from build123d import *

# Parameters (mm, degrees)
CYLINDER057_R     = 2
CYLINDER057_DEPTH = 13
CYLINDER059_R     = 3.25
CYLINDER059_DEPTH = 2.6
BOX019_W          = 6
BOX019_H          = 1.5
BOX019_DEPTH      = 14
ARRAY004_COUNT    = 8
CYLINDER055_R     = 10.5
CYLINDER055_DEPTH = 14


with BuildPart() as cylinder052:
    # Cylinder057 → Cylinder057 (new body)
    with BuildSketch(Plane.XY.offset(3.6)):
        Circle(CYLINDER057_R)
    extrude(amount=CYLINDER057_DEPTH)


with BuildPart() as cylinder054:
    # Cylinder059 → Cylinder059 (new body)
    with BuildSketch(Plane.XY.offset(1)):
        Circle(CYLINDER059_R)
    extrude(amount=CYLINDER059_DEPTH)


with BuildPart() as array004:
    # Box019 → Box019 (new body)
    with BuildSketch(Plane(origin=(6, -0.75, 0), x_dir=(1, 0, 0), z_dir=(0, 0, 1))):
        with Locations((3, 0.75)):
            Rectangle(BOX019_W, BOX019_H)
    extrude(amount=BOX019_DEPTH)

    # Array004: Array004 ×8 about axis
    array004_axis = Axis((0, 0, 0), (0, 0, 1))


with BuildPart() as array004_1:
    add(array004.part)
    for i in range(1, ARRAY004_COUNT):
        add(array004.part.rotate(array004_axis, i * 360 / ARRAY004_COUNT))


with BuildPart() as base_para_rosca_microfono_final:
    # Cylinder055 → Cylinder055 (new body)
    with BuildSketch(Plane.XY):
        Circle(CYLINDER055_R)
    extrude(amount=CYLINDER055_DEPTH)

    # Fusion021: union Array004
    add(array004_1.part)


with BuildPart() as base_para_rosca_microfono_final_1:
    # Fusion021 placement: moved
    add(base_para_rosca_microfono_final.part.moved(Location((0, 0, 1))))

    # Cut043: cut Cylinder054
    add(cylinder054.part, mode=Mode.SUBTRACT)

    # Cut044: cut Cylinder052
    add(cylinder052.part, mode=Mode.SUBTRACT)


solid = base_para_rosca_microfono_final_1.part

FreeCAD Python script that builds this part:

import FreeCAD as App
import Part
import Sketcher

doc = App.newDocument("Part")
body = doc.addObject("PartDesign::Body", "Body")

sketch1 = body.newObject("Sketcher::SketchObject", "Sketch")
sketch1.AttachmentSupport = (doc.getObject("XY_Plane"), [""])
sketch1.MapMode = "FlatFace"
sketch1.AttachmentOffset = App.Placement(App.Vector(0, 0, 3.6), App.Rotation())
sketch1.addGeometry(Part.Circle(App.Vector(0, 0, 0), App.Vector(0, 0, 1), 2), False)
sketch1.addConstraint(Sketcher.Constraint("Coincident", 0, 3, -1, 1))
sketch1.addConstraint(Sketcher.Constraint("Diameter", 0, 4.0))
pad1 = body.newObject("PartDesign::Pad", "Pad")
pad1.Profile = sketch1
pad1.Length = 13
body2 = doc.addObject("PartDesign::Body", "Body001")

sketch2 = body2.newObject("Sketcher::SketchObject", "Sketch001")
sketch2.AttachmentSupport = (doc.getObject("XY_Plane001"), [""])
sketch2.MapMode = "FlatFace"
sketch2.AttachmentOffset = App.Placement(App.Vector(0, 0, 1), App.Rotation())
sketch2.addGeometry(Part.Circle(App.Vector(0, 0, 0), App.Vector(0, 0, 1), 3.25), False)
sketch2.addConstraint(Sketcher.Constraint("Coincident", 0, 3, -1, 1))
sketch2.addConstraint(Sketcher.Constraint("Diameter", 0, 6.5))
pad2 = body2.newObject("PartDesign::Pad", "Pad001")
pad2.Profile = sketch2
pad2.Length = 2.6
body3 = doc.addObject("PartDesign::Body", "Body002")

sketch3 = body3.newObject("Sketcher::SketchObject", "Sketch002")
sketch3.AttachmentSupport = (doc.getObject("XY_Plane002"), [""])
sketch3.MapMode = "FlatFace"
sketch3.addGeometry(Part.LineSegment(App.Vector(6, 0.75, 0), App.Vector(6, -0.75, 0)), False)
sketch3.addGeometry(Part.LineSegment(App.Vector(6, -0.75, 0), App.Vector(12, -0.75, 0)), False)
sketch3.addGeometry(Part.LineSegment(App.Vector(12, -0.75, 0), App.Vector(12, 0.75, 0)), False)
sketch3.addGeometry(Part.LineSegment(App.Vector(12, 0.75, 0), App.Vector(6, 0.75, 0)), False)
sketch3.addConstraint(Sketcher.Constraint("Coincident", 0, 2, 1, 1))
sketch3.addConstraint(Sketcher.Constraint("Coincident", 1, 2, 2, 1))
sketch3.addConstraint(Sketcher.Constraint("Coincident", 2, 2, 3, 1))
sketch3.addConstraint(Sketcher.Constraint("Coincident", 3, 2, 0, 1))
sketch3.addConstraint(Sketcher.Constraint("Vertical", 0))
sketch3.addConstraint(Sketcher.Constraint("Horizontal", 1))
sketch3.addConstraint(Sketcher.Constraint("Vertical", 2))
sketch3.addConstraint(Sketcher.Constraint("Horizontal", 3))
sketch3.addConstraint(Sketcher.Constraint("DistanceX", 1, 1, 1, 2, 6.0))
sketch3.addConstraint(Sketcher.Constraint("DistanceY", 0, 2, 0, 1, 1.5))
sketch3.addConstraint(Sketcher.Constraint("DistanceX", -1, 1, 0, 2, 6.0))
sketch3.addConstraint(Sketcher.Constraint("DistanceY", 0, 2, -1, 1, 0.75))
pad3 = body3.newObject("PartDesign::Pad", "Pad002")
pad3.Profile = sketch3
pad3.Length = 14
body4 = doc.addObject("PartDesign::Body", "Body003")
body4.AllowCompound = True
doc.recompute()

body4.BaseFeature = body3
doc.recompute()

body5 = doc.addObject("PartDesign::Body", "Body004")
body5.BaseFeature = body3
body5.Placement = App.Placement(App.Vector(0, 0, 0), App.Rotation(App.Vector(0, 0, 1), 45))
boolean = body4.newObject("PartDesign::Boolean", "Boolean")
boolean.Type = "Fuse"
boolean.addObjects([body5])
doc.recompute()

body6 = doc.addObject("PartDesign::Body", "Body005")
body6.BaseFeature = body3
body6.Placement = App.Placement(App.Vector(0, 0, 0), App.Rotation(App.Vector(0, 0, 1), 90))
boolean2 = body4.newObject("PartDesign::Boolean", "Boolean001")
boolean2.Type = "Fuse"
boolean2.addObjects([body6])
doc.recompute()

body7 = doc.addObject("PartDesign::Body", "Body006")
body7.BaseFeature = body3
body7.Placement = App.Placement(App.Vector(0, 0, 0), App.Rotation(App.Vector(0, 0, 1), 135))
boolean3 = body4.newObject("PartDesign::Boolean", "Boolean002")
boolean3.Type = "Fuse"
boolean3.addObjects([body7])
doc.recompute()

body8 = doc.addObject("PartDesign::Body", "Body007")
body8.BaseFeature = body3
body8.Placement = App.Placement(App.Vector(0, 0, 0), App.Rotation(App.Vector(0, 0, 1), 180))
boolean4 = body4.newObject("PartDesign::Boolean", "Boolean003")
boolean4.Type = "Fuse"
boolean4.addObjects([body8])
doc.recompute()

body9 = doc.addObject("PartDesign::Body", "Body008")
body9.BaseFeature = body3
body9.Placement = App.Placement(App.Vector(0, 0, 0), App.Rotation(App.Vector(0, 0, 1), 225))
boolean5 = body4.newObject("PartDesign::Boolean", "Boolean004")
boolean5.Type = "Fuse"
boolean5.addObjects([body9])
doc.recompute()

body10 = doc.addObject("PartDesign::Body", "Body009")
body10.BaseFeature = body3
body10.Placement = App.Placement(App.Vector(0, 0, 0), App.Rotation(App.Vector(0, 0, 1), 270))
boolean6 = body4.newObject("PartDesign::Boolean", "Boolean005")
boolean6.Type = "Fuse"
boolean6.addObjects([body10])
doc.recompute()

body3.Placement = App.Placement(App.Vector(0, 0, 0), App.Rotation(App.Vector(0, 0, 1), 315))
boolean7 = body4.newObject("PartDesign::Boolean", "Boolean006")
boolean7.Type = "Fuse"
boolean7.addObjects([body3])
body11 = doc.addObject("PartDesign::Body", "Body010")

sketch4 = body11.newObject("Sketcher::SketchObject", "Sketch003")
sketch4.AttachmentSupport = (doc.getObject("XY_Plane010"), [""])
sketch4.MapMode = "FlatFace"
sketch4.addGeometry(Part.Circle(App.Vector(0, 0, 0), App.Vector(0, 0, 1), 10.5), False)
sketch4.addConstraint(Sketcher.Constraint("Coincident", 0, 3, -1, 1))
sketch4.addConstraint(Sketcher.Constraint("Diameter", 0, 21.0))
pad4 = body11.newObject("PartDesign::Pad", "Pad003")
pad4.Profile = sketch4
pad4.Length = 14
doc.recompute()

boolean8 = body11.newObject("PartDesign::Boolean", "Boolean007")
boolean8.Type = "Fuse"
boolean8.addObjects([body4])
body12 = doc.addObject("PartDesign::Body", "Body011")
doc.recompute()

body11.Placement = App.Placement(App.Vector(0, 0, 1), App.Rotation(App.Vector(0, 0, 1), 0))
boolean9 = body12.newObject("PartDesign::Boolean", "Boolean008")
boolean9.Type = "Fuse"
boolean9.addObjects([body11])
doc.recompute()

boolean10 = body12.newObject("PartDesign::Boolean", "Boolean009")
boolean10.Type = "Cut"
boolean10.addObjects([body2])
doc.recompute()

boolean11 = body12.newObject("PartDesign::Boolean", "Boolean010")
boolean11.Type = "Cut"
boolean11.addObjects([body])

doc.recompute()
